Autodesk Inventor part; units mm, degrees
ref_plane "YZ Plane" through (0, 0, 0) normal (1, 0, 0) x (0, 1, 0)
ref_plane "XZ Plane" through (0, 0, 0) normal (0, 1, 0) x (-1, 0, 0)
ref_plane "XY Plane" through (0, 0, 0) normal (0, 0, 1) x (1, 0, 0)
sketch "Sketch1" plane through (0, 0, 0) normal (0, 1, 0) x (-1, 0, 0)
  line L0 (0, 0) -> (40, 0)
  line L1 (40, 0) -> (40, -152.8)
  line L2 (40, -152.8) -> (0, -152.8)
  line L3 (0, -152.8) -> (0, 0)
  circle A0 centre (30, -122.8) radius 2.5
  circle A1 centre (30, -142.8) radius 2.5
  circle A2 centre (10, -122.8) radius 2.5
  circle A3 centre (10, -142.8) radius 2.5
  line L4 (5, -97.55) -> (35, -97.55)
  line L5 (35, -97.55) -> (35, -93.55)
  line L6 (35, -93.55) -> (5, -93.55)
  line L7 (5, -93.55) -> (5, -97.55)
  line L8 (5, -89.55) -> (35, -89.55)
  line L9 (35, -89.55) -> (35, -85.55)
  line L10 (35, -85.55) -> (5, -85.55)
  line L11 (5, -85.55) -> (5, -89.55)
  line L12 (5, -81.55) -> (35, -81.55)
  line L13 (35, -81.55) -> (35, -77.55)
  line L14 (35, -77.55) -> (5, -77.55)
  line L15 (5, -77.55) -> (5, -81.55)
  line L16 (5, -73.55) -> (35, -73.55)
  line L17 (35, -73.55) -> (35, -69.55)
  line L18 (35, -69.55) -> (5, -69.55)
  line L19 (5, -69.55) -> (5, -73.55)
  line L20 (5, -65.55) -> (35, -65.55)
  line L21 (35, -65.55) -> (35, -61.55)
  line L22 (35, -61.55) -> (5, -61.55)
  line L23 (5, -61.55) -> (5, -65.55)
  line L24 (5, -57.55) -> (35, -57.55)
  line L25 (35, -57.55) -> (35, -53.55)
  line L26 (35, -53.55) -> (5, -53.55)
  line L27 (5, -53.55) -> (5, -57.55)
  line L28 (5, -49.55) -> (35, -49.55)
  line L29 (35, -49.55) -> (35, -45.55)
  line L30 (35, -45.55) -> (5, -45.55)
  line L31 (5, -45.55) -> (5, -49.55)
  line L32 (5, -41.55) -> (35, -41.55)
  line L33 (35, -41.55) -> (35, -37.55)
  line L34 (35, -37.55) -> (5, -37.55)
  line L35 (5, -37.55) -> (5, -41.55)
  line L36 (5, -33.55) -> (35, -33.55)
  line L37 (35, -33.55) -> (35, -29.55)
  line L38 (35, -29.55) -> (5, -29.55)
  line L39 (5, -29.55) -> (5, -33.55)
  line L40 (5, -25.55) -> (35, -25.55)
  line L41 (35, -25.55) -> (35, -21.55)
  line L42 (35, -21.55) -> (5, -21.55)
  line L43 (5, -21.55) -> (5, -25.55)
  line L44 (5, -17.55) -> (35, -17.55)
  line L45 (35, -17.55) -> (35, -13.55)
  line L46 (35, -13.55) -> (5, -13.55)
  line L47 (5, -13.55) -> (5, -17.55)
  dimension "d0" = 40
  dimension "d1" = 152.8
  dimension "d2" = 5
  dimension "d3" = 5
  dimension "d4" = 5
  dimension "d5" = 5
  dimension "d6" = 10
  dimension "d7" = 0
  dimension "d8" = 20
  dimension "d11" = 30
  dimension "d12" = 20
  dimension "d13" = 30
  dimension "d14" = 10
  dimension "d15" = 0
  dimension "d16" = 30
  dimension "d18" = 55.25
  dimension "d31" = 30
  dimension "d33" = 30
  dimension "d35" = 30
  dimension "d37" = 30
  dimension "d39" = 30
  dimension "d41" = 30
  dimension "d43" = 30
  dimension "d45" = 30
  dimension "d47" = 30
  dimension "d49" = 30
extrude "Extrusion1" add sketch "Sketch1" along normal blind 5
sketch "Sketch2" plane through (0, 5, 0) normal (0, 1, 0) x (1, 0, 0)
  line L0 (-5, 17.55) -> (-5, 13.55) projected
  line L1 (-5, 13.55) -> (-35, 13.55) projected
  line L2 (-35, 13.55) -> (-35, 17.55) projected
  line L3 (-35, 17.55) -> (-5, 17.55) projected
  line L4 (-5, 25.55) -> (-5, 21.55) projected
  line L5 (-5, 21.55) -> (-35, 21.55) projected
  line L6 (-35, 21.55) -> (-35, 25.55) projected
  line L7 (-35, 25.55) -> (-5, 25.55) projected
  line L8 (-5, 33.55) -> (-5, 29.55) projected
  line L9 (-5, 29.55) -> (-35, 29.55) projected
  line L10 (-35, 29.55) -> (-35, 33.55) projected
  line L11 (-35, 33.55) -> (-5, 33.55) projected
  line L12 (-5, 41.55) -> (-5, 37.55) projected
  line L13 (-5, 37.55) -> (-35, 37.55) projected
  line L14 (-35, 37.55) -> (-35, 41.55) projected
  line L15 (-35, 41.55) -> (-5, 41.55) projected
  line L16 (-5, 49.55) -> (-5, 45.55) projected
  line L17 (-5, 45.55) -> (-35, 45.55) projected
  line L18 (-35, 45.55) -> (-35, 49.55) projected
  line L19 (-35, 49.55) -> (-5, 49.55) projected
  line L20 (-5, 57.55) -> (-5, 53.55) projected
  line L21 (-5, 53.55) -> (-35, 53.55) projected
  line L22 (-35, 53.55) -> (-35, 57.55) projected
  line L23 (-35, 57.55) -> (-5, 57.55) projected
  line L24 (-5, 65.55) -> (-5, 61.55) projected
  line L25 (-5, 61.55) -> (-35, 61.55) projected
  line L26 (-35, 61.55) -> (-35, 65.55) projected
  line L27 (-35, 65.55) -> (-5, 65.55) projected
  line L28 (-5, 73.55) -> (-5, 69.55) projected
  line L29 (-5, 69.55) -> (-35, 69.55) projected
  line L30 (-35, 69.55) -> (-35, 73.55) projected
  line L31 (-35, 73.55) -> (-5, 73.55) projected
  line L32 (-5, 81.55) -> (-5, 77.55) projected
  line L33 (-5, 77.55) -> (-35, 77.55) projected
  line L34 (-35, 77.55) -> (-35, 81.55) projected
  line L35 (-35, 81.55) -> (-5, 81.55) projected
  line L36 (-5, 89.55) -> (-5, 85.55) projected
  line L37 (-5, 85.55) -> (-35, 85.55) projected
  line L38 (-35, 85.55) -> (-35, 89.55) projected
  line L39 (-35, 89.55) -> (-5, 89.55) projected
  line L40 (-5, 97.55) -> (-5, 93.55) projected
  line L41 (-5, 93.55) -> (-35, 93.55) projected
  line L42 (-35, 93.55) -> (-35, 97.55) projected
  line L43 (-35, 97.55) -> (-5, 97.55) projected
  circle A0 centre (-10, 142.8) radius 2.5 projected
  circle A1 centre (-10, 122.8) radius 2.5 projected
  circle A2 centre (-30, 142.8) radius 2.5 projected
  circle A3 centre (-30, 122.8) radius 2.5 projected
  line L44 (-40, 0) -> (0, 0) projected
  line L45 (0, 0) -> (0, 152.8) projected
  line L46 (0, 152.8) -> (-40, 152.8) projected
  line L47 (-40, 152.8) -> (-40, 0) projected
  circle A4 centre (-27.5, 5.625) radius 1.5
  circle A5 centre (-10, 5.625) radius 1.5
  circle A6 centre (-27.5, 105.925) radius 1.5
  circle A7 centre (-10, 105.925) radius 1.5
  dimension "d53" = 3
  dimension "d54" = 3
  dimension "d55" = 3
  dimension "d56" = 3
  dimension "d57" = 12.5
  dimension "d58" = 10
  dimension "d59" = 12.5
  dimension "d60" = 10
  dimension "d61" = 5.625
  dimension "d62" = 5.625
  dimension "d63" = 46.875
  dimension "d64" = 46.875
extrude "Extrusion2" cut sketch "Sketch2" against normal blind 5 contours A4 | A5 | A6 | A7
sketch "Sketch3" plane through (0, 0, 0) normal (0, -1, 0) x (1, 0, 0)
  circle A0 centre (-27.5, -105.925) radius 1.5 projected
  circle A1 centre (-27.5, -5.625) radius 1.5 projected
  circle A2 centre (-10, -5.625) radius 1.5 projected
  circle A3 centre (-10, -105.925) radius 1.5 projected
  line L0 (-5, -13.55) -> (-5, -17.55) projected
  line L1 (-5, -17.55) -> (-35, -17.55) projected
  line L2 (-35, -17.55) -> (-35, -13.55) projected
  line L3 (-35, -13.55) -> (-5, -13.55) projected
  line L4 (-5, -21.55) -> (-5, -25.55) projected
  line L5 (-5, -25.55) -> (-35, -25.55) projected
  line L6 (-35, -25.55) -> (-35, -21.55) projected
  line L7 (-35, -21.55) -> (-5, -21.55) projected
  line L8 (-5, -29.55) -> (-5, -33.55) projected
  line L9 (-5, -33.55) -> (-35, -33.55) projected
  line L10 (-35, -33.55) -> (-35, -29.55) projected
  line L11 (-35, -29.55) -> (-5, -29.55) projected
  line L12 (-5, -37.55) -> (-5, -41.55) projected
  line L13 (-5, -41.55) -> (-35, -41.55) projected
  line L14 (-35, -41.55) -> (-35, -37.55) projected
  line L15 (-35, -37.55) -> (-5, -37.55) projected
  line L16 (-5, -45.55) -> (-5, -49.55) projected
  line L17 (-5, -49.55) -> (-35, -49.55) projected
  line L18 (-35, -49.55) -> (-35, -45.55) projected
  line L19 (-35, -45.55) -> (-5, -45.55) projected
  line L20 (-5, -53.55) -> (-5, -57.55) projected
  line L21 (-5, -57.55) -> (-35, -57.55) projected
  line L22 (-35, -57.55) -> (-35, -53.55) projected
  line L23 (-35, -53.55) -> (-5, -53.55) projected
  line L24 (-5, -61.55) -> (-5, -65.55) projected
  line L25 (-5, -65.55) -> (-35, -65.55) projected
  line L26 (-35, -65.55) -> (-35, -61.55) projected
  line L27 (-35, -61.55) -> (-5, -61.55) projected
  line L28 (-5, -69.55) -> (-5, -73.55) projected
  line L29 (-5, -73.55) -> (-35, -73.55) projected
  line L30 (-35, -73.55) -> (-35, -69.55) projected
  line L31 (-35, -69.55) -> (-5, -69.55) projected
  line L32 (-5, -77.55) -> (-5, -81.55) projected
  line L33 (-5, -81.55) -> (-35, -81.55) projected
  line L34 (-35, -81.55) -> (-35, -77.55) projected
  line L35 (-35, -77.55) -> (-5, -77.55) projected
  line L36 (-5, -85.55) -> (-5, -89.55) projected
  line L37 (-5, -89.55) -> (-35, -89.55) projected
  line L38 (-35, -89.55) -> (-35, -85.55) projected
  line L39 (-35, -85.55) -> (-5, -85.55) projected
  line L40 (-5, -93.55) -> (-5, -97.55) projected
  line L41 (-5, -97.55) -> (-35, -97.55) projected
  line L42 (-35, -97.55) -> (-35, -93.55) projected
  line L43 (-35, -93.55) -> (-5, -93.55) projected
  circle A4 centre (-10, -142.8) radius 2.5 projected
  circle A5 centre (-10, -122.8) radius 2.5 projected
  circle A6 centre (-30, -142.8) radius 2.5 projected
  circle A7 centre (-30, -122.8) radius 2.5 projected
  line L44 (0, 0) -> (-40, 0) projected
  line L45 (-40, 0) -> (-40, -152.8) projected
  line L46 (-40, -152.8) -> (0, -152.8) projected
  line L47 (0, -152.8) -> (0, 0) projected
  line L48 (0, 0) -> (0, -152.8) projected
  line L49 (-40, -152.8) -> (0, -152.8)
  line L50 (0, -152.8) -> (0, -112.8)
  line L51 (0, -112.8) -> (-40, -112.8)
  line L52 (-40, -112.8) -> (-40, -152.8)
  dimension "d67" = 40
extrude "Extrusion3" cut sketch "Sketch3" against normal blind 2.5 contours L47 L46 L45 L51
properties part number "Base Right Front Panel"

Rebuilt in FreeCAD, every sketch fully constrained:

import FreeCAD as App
import Part
import Sketcher

doc = App.newDocument("Part")
body = doc.addObject("PartDesign::Body", "Body")

sketch1 = body.newObject("Sketcher::SketchObject", "Sketch")
sketch1.AttachmentSupport = (doc.getObject("XZ_Plane"), [""])
sketch1.MapMode = "FlatFace"
sketch1.addGeometry([
    Part.LineSegment(App.Vector(-40, 0, 0), App.Vector(0, 0, 0)),
    Part.LineSegment(App.Vector(0, 0, 0), App.Vector(0, -152.8, 0)),
    Part.LineSegment(App.Vector(0, -152.8, 0), App.Vector(-40, -152.8, 0)),
    Part.LineSegment(App.Vector(-40, -152.8, 0), App.Vector(-40, 0, 0)),
    Part.Circle(App.Vector(-10, -142.8, 0), App.Vector(0, 0, 1), 2.5),
    Part.Circle(App.Vector(-10, -122.8, 0), App.Vector(0, 0, 1), 2.5),
    Part.Circle(App.Vector(-30, -142.8, 0), App.Vector(0, 0, 1), 2.5),
    Part.Circle(App.Vector(-30, -122.8, 0), App.Vector(0, 0, 1), 2.5),
    Part.LineSegment(App.Vector(-35, -97.55, 0), App.Vector(-5, -97.55, 0)),
    Part.LineSegment(App.Vector(-5, -97.55, 0), App.Vector(-5, -93.55, 0)),
    Part.LineSegment(App.Vector(-5, -93.55, 0), App.Vector(-35, -93.55, 0)),
    Part.LineSegment(App.Vector(-35, -93.55, 0), App.Vector(-35, -97.55, 0)),
    Part.LineSegment(App.Vector(-35, -89.55, 0), App.Vector(-5, -89.55, 0)),
    Part.LineSegment(App.Vector(-5, -89.55, 0), App.Vector(-5, -85.55, 0)),
    Part.LineSegment(App.Vector(-5, -85.55, 0), App.Vector(-35, -85.55, 0)),
    Part.LineSegment(App.Vector(-35, -85.55, 0), App.Vector(-35, -89.55, 0)),
    Part.LineSegment(App.Vector(-35, -81.55, 0), App.Vector(-5, -81.55, 0)),
    Part.LineSegment(App.Vector(-5, -81.55, 0), App.Vector(-5, -77.55, 0)),
    Part.LineSegment(App.Vector(-5, -77.55, 0), App.Vector(-35, -77.55, 0)),
    Part.LineSegment(App.Vector(-35, -77.55, 0), App.Vector(-35, -81.55, 0)),
    Part.LineSegment(App.Vector(-35, -73.55, 0), App.Vector(-5, -73.55, 0)),
    Part.LineSegment(App.Vector(-5, -73.55, 0), App.Vector(-5, -69.55, 0)),
    Part.LineSegment(App.Vector(-5, -69.55, 0), App.Vector(-35, -69.55, 0)),
    Part.LineSegment(App.Vector(-35, -69.55, 0), App.Vector(-35, -73.55, 0)),
    Part.LineSegment(App.Vector(-35, -65.55, 0), App.Vector(-5, -65.55, 0)),
    Part.LineSegment(App.Vector(-5, -65.55, 0), App.Vector(-5, -61.55, 0)),
    Part.LineSegment(App.Vector(-5, -61.55, 0), App.Vector(-35, -61.55, 0)),
    Part.LineSegment(App.Vector(-35, -61.55, 0), App.Vector(-35, -65.55, 0)),
    Part.LineSegment(App.Vector(-35, -57.55, 0), App.Vector(-5, -57.55, 0)),
    Part.LineSegment(App.Vector(-5, -57.55, 0), App.Vector(-5, -53.55, 0)),
    Part.LineSegment(App.Vector(-5, -53.55, 0), App.Vector(-35, -53.55, 0)),
    Part.LineSegment(App.Vector(-35, -53.55, 0), App.Vector(-35, -57.55, 0)),
    Part.LineSegment(App.Vector(-35, -49.55, 0), App.Vector(-5, -49.55, 0)),
    Part.LineSegment(App.Vector(-5, -49.55, 0), App.Vector(-5, -45.55, 0)),
    Part.LineSegment(App.Vector(-5, -45.55, 0), App.Vector(-35, -45.55, 0)),
    Part.LineSegment(App.Vector(-35, -45.55, 0), App.Vector(-35, -49.55, 0)),
    Part.LineSegment(App.Vector(-35, -41.55, 0), App.Vector(-5, -41.55, 0)),
    Part.LineSegment(App.Vector(-5, -41.55, 0), App.Vector(-5, -37.55, 0)),
    Part.LineSegment(App.Vector(-5, -37.55, 0), App.Vector(-35, -37.55, 0)),
    Part.LineSegment(App.Vector(-35, -37.55, 0), App.Vector(-35, -41.55, 0)),
    Part.LineSegment(App.Vector(-35, -33.55, 0), App.Vector(-5, -33.55, 0)),
    Part.LineSegment(App.Vector(-5, -33.55, 0), App.Vector(-5, -29.55, 0)),
    Part.LineSegment(App.Vector(-5, -29.55, 0), App.Vector(-35, -29.55, 0)),
    Part.LineSegment(App.Vector(-35, -29.55, 0), App.Vector(-35, -33.55, 0)),
    Part.LineSegment(App.Vector(-35, -25.55, 0), App.Vector(-5, -25.55, 0)),
    Part.LineSegment(App.Vector(-5, -25.55, 0), App.Vector(-5, -21.55, 0)),
    Part.LineSegment(App.Vector(-5, -21.55, 0), App.Vector(-35, -21.55, 0)),
    Part.LineSegment(App.Vector(-35, -21.55, 0), App.Vector(-35, -25.55, 0)),
    Part.LineSegment(App.Vector(-35, -17.55, 0), App.Vector(-5, -17.55, 0)),
    Part.LineSegment(App.Vector(-5, -17.55, 0), App.Vector(-5, -13.55, 0)),
    Part.LineSegment(App.Vector(-5, -13.55, 0), App.Vector(-35, -13.55, 0)),
    Part.LineSegment(App.Vector(-35, -13.55, 0), App.Vector(-35, -17.55, 0)),
], False)
sketch1.addConstraint([
    Sketcher.Constraint("Coincident", 0, 2, 1, 1),
    Sketcher.Constraint("Coincident", 1, 2, 2, 1),
    Sketcher.Constraint("Coincident", 2, 2, 3, 1),
    Sketcher.Constraint("Coincident", 3, 2, 0, 1),
    Sketcher.Constraint("Coincident", 8, 2, 9, 1),
    Sketcher.Constraint("Coincident", 9, 2, 10, 1),
    Sketcher.Constraint("Coincident", 10, 2, 11, 1),
    Sketcher.Constraint("Coincident", 11, 2, 8, 1),
    Sketcher.Constraint("Coincident", 12, 2, 13, 1),
    Sketcher.Constraint("Coincident", 13, 2, 14, 1),
    Sketcher.Constraint("Coincident", 14, 2, 15, 1),
    Sketcher.Constraint("Coincident", 15, 2, 12, 1),
    Sketcher.Constraint("Coincident", 16, 2, 17, 1),
    Sketcher.Constraint("Coincident", 17, 2, 18, 1),
    Sketcher.Constraint("Coincident", 18, 2, 19, 1),
    Sketcher.Constraint("Coincident", 19, 2, 16, 1),
    Sketcher.Constraint("Coincident", 20, 2, 21, 1),
    Sketcher.Constraint("Coincident", 21, 2, 22, 1),
    Sketcher.Constraint("Coincident", 22, 2, 23, 1),
    Sketcher.Constraint("Coincident", 23, 2, 20, 1),
    Sketcher.Constraint("Coincident", 24, 2, 25, 1),
    Sketcher.Constraint("Coincident", 25, 2, 26, 1),
    Sketcher.Constraint("Coincident", 26, 2, 27, 1),
    Sketcher.Constraint("Coincident", 27, 2, 24, 1),
    Sketcher.Constraint("Coincident", 28, 2, 29, 1),
    Sketcher.Constraint("Coincident", 29, 2, 30, 1),
    Sketcher.Constraint("Coincident", 30, 2, 31, 1),
    Sketcher.Constraint("Coincident", 31, 2, 28, 1),
    Sketcher.Constraint("Coincident", 32, 2, 33, 1),
    Sketcher.Constraint("Coincident", 33, 2, 34, 1),
    Sketcher.Constraint("Coincident", 34, 2, 35, 1),
    Sketcher.Constraint("Coincident", 35, 2, 32, 1),
    Sketcher.Constraint("Coincident", 36, 2, 37, 1),
    Sketcher.Constraint("Coincident", 37, 2, 38, 1),
    Sketcher.Constraint("Coincident", 38, 2, 39, 1),
    Sketcher.Constraint("Coincident", 39, 2, 36, 1),
    Sketcher.Constraint("Coincident", 40, 2, 41, 1),
    Sketcher.Constraint("Coincident", 41, 2, 42, 1),
    Sketcher.Constraint("Coincident", 42, 2, 43, 1),
    Sketcher.Constraint("Coincident", 43, 2, 40, 1),
    Sketcher.Constraint("Coincident", 44, 2, 45, 1),
    Sketcher.Constraint("Coincident", 45, 2, 46, 1),
    Sketcher.Constraint("Coincident", 46, 2, 47, 1),
    Sketcher.Constraint("Coincident", 47, 2, 44, 1),
    Sketcher.Constraint("Coincident", 48, 2, 49, 1),
    Sketcher.Constraint("Coincident", 49, 2, 50, 1),
    Sketcher.Constraint("Coincident", 50, 2, 51, 1),
    Sketcher.Constraint("Coincident", 51, 2, 48, 1),
    Sketcher.Constraint("Horizontal", 0),
    Sketcher.Constraint("Vertical", 1),
    Sketcher.Constraint("Horizontal", 2),
    Sketcher.Constraint("Vertical", 3),
    Sketcher.Constraint("Horizontal", 8),
    Sketcher.Constraint("Vertical", 9),
    Sketcher.Constraint("Horizontal", 10),
    Sketcher.Constraint("Vertical", 11),
    Sketcher.Constraint("Horizontal", 12),
    Sketcher.Constraint("Vertical", 13),
    Sketcher.Constraint("Horizontal", 14),
    Sketcher.Constraint("Vertical", 15),
    Sketcher.Constraint("Horizontal", 16),
    Sketcher.Constraint("Vertical", 17),
    Sketcher.Constraint("Horizontal", 18),
    Sketcher.Constraint("Vertical", 19),
    Sketcher.Constraint("Horizontal", 20),
    Sketcher.Constraint("Vertical", 21),
    Sketcher.Constraint("Horizontal", 22),
    Sketcher.Constraint("Vertical", 23),
    Sketcher.Constraint("Horizontal", 24),
    Sketcher.Constraint("Vertical", 25),
    Sketcher.Constraint("Horizontal", 26),
    Sketcher.Constraint("Vertical", 27),
    Sketcher.Constraint("Horizontal", 28),
    Sketcher.Constraint("Vertical", 29),
    Sketcher.Constraint("Horizontal", 30),
    Sketcher.Constraint("Vertical", 31),
    Sketcher.Constraint("Horizontal", 32),
    Sketcher.Constraint("Vertical", 33),
    Sketcher.Constraint("Horizontal", 34),
    Sketcher.Constraint("Vertical", 35),
    Sketcher.Constraint("Horizontal", 36),
    Sketcher.Constraint("Vertical", 37),
    Sketcher.Constraint("Horizontal", 38),
    Sketcher.Constraint("Vertical", 39),
    Sketcher.Constraint("Horizontal", 40),
    Sketcher.Constraint("Vertical", 41),
    Sketcher.Constraint("Horizontal", 42),
    Sketcher.Constraint("Vertical", 43),
    Sketcher.Constraint("Horizontal", 44),
    Sketcher.Constraint("Vertical", 45),
    Sketcher.Constraint("Horizontal", 46),
    Sketcher.Constraint("Vertical", 47),
    Sketcher.Constraint("Horizontal", 48),
    Sketcher.Constraint("Vertical", 49),
    Sketcher.Constraint("Horizontal", 50),
    Sketcher.Constraint("Vertical", 51),
    Sketcher.Constraint("Coincident", 0, 2, -1, 1),
    Sketcher.Constraint("Equal", 4, 5),
    Sketcher.Constraint("Equal", 5, 6),
    Sketcher.Constraint("Equal", 6, 7),
    Sketcher.Constraint("Horizontal", 4, 3, 6, 3),
    Sketcher.Constraint("Horizontal", 5, 3, 7, 3),
    Sketcher.Constraint("Vertical", 4, 3, 5, 3),
    Sketcher.Constraint("Vertical", 6, 3, 7, 3),
    Sketcher.Constraint("Vertical", 9, 2, 12, 2),
    Sketcher.Constraint("Vertical", 11, 2, 14, 2),
    Sketcher.Constraint("Vertical", 13, 2, 16, 2),
    Sketcher.Constraint("Vertical", 15, 2, 18, 2),
    Sketcher.Constraint("Vertical", 17, 2, 20, 2),
    Sketcher.Constraint("Vertical", 19, 2, 22, 2),
    Sketcher.Constraint("Vertical", 21, 2, 24, 2),
    Sketcher.Constraint("Vertical", 23, 2, 26, 2),
    Sketcher.Constraint("Vertical", 25, 2, 28, 2),
    Sketcher.Constraint("Vertical", 27, 2, 30, 2),
    Sketcher.Constraint("Vertical", 29, 2, 32, 2),
    Sketcher.Constraint("Vertical", 31, 2, 34, 2),
    Sketcher.Constraint("Vertical", 33, 2, 36, 2),
    Sketcher.Constraint("Vertical", 35, 2, 38, 2),
    Sketcher.Constraint("Vertical", 37, 2, 40, 2),
    Sketcher.Constraint("Vertical", 39, 2, 42, 2),
    Sketcher.Constraint("Vertical", 41, 2, 44, 2),
    Sketcher.Constraint("Vertical", 43, 2, 46, 2),
    Sketcher.Constraint("Vertical", 45, 2, 48, 2),
    Sketcher.Constraint("Vertical", 47, 2, 50, 2),
    Sketcher.Constraint("Equal", 11, 13),
    Sketcher.Constraint("Equal", 15, 17),
    Sketcher.Constraint("Equal", 19, 21),
    Sketcher.Constraint("Equal", 23, 25),
    Sketcher.Constraint("Equal", 27, 29),
    Sketcher.Constraint("Equal", 31, 33),
    Sketcher.Constraint("Equal", 35, 37),
    Sketcher.Constraint("Equal", 39, 41),
    Sketcher.Constraint("Equal", 43, 45),
    Sketcher.Constraint("Equal", 47, 49),
    Sketcher.Constraint("Diameter", 4, 5.0),
    Sketcher.Constraint("DistanceX", 0, 1, 0, 2, 40.0),
    Sketcher.Constraint("DistanceX", 8, 1, 8, 2, 30.0),
    Sketcher.Constraint("DistanceY", 1, 2, 1, 1, 152.8),
    Sketcher.Constraint("DistanceX", 4, 3, -1, 1, 10.0),
    Sketcher.Constraint("DistanceX", 6, 3, -1, 1, 30.0),
    Sketcher.Constraint("DistanceX", 8, 2, -1, 1, 5.0),
    Sketcher.Constraint("DistanceY", 4, 3, 5, 3, 20.0),
    Sketcher.Constraint("DistanceY", 1, 2, 4, 3, 10.0),
    Sketcher.Constraint("DistanceY", 8, 2, 17, 2, 20.0),
    Sketcher.Constraint("DistanceY", 9, 2, 20, 2, 20.0),
    Sketcher.Constraint("DistanceY", 12, 2, 21, 2, 20.0),
    Sketcher.Constraint("DistanceY", 13, 2, 24, 2, 20.0),
    Sketcher.Constraint("DistanceY", 16, 2, 25, 2, 20.0),
    Sketcher.Constraint("DistanceY", 17, 2, 28, 2, 20.0),
    Sketcher.Constraint("DistanceY", 21, 2, 32, 2, 20.0),
    Sketcher.Constraint("DistanceY", 25, 2, 36, 2, 20.0),
    Sketcher.Constraint("DistanceY", 29, 2, 40, 2, 20.0),
    Sketcher.Constraint("DistanceY", 33, 2, 44, 2, 20.0),
    Sketcher.Constraint("DistanceY", 43, 2, 50, 2, 20.0),
    Sketcher.Constraint("DistanceY", 1, 2, 8, 2, 55.25),
])
pad1 = body.newObject("PartDesign::Pad", "Pad")
pad1.Profile = sketch1
pad1.Length = 5
pad1.Reversed = True

sketch2 = body.newObject("Sketcher::SketchObject", "Sketch001")
sketch2.AttachmentSupport = (doc.getObject("XZ_Plane"), [""])
sketch2.MapMode = "FlatFace"
sketch2.AttachmentOffset = App.Placement(App.Vector(0, 0, -5), App.Rotation())
sketch2.addGeometry([
    Part.Circle(App.Vector(-27.5, -5.625, 0), App.Vector(0, 0, 1), 1.5),
    Part.Circle(App.Vector(-10, -5.625, 0), App.Vector(0, 0, 1), 1.5),
    Part.Circle(App.Vector(-27.5, -105.925, 0), App.Vector(0, 0, 1), 1.5),
    Part.Circle(App.Vector(-10, -105.925, 0), App.Vector(0, 0, 1), 1.5),
], False)
sketch2.addConstraint([
    Sketcher.Constraint("Equal", 0, 1),
    Sketcher.Constraint("Equal", 1, 2),
    Sketcher.Constraint("Equal", 2, 3),
    Sketcher.Constraint("Horizontal", 0, 3, 1, 3),
    Sketcher.Constraint("Horizontal", 2, 3, 3, 3),
    Sketcher.Constraint("Vertical", 0, 3, 2, 3),
    Sketcher.Constraint("Vertical", 1, 3, 3, 3),
    Sketcher.Constraint("Diameter", 0, 3.0),
    Sketcher.Constraint("DistanceX", 1, 3, -1, 1, 10.0),
    Sketcher.Constraint("DistanceY", 0, 3, -1, 1, 5.625),
    Sketcher.Constraint("DistanceX", 0, 3, -1, 1, 27.5),
    Sketcher.Constraint("DistanceY", 2, 3, 0, 3, 100.3),
])
pocket1 = body.newObject("PartDesign::Pocket", "Pocket")
pocket1.Profile = sketch2
pocket1.Length = 5
pocket1.Reversed = True

sketch3 = body.newObject("Sketcher::SketchObject", "Sketch002")
sketch3.AttachmentSupport = (doc.getObject("XZ_Plane"), [""])
sketch3.MapMode = "FlatFace"
sketch3.addGeometry([
    Part.LineSegment(App.Vector(0, -152.8, 0), App.Vector(0, -112.8, 0)),
    Part.LineSegment(App.Vector(0, -112.8, 0), App.Vector(-40, -112.8, 0)),
    Part.LineSegment(App.Vector(-40, -112.8, 0), App.Vector(-40, -152.8, 0)),
    Part.LineSegment(App.Vector(-40, -152.8, 0), App.Vector(0, -152.8, 0)),
    Part.Circle(App.Vector(-30, -142.8, 0), App.Vector(0, 0, 1), 2.5),
    Part.Circle(App.Vector(-30, -122.8, 0), App.Vector(0, 0, 1), 2.5),
    Part.Circle(App.Vector(-10, -142.8, 0), App.Vector(0, 0, 1), 2.5),
    Part.Circle(App.Vector(-10, -122.8, 0), App.Vector(0, 0, 1), 2.5),
], False)
sketch3.addConstraint([
    Sketcher.Constraint("Coincident", 0, 2, 1, 1),
    Sketcher.Constraint("Coincident", 1, 2, 2, 1),
    Sketcher.Constraint("Coincident", 2, 2, 3, 1),
    Sketcher.Constraint("Coincident", 3, 2, 0, 1),
    Sketcher.Constraint("Vertical", 0),
    Sketcher.Constraint("Horizontal", 1),
    Sketcher.Constraint("Vertical", 2),
    Sketcher.Constraint("Horizontal", 3),
    Sketcher.Constraint("Equal", 4, 5),
    Sketcher.Constraint("Equal", 5, 6),
    Sketcher.Constraint("Equal", 6, 7),
    Sketcher.Constraint("PointOnObject", 0, 2, -2),
    Sketcher.Constraint("Horizontal", 4, 3, 6, 3),
    Sketcher.Constraint("Horizontal", 5, 3, 7, 3),
    Sketcher.Constraint("Vertical", 4, 3, 5, 3),
    Sketcher.Constraint("Vertical", 6, 3, 7, 3),
    Sketcher.Constraint("Equal", 3, 0),
    Sketcher.Constraint("DistanceX", 1, 2, 1, 1, 40.0),
    Sketcher.Constraint("Diameter", 4, 5.0),
    Sketcher.Constraint("DistanceX", 4, 3, -1, 1, 30.0),
    Sketcher.Constraint("DistanceX", 6, 3, -1, 1, 10.0),
    Sketcher.Constraint("DistanceY", 4, 3, 5, 3, 20.0),
    Sketcher.Constraint("DistanceY", 7, 3, 0, 2, 10.0),
    Sketcher.Constraint("DistanceY", 4, 3, -1, 1, 142.8),
])
pocket2 = body.newObject("PartDesign::Pocket", "Pocket001")
pocket2.Profile = sketch3
pocket2.Length = 2.5

doc.recompute()
